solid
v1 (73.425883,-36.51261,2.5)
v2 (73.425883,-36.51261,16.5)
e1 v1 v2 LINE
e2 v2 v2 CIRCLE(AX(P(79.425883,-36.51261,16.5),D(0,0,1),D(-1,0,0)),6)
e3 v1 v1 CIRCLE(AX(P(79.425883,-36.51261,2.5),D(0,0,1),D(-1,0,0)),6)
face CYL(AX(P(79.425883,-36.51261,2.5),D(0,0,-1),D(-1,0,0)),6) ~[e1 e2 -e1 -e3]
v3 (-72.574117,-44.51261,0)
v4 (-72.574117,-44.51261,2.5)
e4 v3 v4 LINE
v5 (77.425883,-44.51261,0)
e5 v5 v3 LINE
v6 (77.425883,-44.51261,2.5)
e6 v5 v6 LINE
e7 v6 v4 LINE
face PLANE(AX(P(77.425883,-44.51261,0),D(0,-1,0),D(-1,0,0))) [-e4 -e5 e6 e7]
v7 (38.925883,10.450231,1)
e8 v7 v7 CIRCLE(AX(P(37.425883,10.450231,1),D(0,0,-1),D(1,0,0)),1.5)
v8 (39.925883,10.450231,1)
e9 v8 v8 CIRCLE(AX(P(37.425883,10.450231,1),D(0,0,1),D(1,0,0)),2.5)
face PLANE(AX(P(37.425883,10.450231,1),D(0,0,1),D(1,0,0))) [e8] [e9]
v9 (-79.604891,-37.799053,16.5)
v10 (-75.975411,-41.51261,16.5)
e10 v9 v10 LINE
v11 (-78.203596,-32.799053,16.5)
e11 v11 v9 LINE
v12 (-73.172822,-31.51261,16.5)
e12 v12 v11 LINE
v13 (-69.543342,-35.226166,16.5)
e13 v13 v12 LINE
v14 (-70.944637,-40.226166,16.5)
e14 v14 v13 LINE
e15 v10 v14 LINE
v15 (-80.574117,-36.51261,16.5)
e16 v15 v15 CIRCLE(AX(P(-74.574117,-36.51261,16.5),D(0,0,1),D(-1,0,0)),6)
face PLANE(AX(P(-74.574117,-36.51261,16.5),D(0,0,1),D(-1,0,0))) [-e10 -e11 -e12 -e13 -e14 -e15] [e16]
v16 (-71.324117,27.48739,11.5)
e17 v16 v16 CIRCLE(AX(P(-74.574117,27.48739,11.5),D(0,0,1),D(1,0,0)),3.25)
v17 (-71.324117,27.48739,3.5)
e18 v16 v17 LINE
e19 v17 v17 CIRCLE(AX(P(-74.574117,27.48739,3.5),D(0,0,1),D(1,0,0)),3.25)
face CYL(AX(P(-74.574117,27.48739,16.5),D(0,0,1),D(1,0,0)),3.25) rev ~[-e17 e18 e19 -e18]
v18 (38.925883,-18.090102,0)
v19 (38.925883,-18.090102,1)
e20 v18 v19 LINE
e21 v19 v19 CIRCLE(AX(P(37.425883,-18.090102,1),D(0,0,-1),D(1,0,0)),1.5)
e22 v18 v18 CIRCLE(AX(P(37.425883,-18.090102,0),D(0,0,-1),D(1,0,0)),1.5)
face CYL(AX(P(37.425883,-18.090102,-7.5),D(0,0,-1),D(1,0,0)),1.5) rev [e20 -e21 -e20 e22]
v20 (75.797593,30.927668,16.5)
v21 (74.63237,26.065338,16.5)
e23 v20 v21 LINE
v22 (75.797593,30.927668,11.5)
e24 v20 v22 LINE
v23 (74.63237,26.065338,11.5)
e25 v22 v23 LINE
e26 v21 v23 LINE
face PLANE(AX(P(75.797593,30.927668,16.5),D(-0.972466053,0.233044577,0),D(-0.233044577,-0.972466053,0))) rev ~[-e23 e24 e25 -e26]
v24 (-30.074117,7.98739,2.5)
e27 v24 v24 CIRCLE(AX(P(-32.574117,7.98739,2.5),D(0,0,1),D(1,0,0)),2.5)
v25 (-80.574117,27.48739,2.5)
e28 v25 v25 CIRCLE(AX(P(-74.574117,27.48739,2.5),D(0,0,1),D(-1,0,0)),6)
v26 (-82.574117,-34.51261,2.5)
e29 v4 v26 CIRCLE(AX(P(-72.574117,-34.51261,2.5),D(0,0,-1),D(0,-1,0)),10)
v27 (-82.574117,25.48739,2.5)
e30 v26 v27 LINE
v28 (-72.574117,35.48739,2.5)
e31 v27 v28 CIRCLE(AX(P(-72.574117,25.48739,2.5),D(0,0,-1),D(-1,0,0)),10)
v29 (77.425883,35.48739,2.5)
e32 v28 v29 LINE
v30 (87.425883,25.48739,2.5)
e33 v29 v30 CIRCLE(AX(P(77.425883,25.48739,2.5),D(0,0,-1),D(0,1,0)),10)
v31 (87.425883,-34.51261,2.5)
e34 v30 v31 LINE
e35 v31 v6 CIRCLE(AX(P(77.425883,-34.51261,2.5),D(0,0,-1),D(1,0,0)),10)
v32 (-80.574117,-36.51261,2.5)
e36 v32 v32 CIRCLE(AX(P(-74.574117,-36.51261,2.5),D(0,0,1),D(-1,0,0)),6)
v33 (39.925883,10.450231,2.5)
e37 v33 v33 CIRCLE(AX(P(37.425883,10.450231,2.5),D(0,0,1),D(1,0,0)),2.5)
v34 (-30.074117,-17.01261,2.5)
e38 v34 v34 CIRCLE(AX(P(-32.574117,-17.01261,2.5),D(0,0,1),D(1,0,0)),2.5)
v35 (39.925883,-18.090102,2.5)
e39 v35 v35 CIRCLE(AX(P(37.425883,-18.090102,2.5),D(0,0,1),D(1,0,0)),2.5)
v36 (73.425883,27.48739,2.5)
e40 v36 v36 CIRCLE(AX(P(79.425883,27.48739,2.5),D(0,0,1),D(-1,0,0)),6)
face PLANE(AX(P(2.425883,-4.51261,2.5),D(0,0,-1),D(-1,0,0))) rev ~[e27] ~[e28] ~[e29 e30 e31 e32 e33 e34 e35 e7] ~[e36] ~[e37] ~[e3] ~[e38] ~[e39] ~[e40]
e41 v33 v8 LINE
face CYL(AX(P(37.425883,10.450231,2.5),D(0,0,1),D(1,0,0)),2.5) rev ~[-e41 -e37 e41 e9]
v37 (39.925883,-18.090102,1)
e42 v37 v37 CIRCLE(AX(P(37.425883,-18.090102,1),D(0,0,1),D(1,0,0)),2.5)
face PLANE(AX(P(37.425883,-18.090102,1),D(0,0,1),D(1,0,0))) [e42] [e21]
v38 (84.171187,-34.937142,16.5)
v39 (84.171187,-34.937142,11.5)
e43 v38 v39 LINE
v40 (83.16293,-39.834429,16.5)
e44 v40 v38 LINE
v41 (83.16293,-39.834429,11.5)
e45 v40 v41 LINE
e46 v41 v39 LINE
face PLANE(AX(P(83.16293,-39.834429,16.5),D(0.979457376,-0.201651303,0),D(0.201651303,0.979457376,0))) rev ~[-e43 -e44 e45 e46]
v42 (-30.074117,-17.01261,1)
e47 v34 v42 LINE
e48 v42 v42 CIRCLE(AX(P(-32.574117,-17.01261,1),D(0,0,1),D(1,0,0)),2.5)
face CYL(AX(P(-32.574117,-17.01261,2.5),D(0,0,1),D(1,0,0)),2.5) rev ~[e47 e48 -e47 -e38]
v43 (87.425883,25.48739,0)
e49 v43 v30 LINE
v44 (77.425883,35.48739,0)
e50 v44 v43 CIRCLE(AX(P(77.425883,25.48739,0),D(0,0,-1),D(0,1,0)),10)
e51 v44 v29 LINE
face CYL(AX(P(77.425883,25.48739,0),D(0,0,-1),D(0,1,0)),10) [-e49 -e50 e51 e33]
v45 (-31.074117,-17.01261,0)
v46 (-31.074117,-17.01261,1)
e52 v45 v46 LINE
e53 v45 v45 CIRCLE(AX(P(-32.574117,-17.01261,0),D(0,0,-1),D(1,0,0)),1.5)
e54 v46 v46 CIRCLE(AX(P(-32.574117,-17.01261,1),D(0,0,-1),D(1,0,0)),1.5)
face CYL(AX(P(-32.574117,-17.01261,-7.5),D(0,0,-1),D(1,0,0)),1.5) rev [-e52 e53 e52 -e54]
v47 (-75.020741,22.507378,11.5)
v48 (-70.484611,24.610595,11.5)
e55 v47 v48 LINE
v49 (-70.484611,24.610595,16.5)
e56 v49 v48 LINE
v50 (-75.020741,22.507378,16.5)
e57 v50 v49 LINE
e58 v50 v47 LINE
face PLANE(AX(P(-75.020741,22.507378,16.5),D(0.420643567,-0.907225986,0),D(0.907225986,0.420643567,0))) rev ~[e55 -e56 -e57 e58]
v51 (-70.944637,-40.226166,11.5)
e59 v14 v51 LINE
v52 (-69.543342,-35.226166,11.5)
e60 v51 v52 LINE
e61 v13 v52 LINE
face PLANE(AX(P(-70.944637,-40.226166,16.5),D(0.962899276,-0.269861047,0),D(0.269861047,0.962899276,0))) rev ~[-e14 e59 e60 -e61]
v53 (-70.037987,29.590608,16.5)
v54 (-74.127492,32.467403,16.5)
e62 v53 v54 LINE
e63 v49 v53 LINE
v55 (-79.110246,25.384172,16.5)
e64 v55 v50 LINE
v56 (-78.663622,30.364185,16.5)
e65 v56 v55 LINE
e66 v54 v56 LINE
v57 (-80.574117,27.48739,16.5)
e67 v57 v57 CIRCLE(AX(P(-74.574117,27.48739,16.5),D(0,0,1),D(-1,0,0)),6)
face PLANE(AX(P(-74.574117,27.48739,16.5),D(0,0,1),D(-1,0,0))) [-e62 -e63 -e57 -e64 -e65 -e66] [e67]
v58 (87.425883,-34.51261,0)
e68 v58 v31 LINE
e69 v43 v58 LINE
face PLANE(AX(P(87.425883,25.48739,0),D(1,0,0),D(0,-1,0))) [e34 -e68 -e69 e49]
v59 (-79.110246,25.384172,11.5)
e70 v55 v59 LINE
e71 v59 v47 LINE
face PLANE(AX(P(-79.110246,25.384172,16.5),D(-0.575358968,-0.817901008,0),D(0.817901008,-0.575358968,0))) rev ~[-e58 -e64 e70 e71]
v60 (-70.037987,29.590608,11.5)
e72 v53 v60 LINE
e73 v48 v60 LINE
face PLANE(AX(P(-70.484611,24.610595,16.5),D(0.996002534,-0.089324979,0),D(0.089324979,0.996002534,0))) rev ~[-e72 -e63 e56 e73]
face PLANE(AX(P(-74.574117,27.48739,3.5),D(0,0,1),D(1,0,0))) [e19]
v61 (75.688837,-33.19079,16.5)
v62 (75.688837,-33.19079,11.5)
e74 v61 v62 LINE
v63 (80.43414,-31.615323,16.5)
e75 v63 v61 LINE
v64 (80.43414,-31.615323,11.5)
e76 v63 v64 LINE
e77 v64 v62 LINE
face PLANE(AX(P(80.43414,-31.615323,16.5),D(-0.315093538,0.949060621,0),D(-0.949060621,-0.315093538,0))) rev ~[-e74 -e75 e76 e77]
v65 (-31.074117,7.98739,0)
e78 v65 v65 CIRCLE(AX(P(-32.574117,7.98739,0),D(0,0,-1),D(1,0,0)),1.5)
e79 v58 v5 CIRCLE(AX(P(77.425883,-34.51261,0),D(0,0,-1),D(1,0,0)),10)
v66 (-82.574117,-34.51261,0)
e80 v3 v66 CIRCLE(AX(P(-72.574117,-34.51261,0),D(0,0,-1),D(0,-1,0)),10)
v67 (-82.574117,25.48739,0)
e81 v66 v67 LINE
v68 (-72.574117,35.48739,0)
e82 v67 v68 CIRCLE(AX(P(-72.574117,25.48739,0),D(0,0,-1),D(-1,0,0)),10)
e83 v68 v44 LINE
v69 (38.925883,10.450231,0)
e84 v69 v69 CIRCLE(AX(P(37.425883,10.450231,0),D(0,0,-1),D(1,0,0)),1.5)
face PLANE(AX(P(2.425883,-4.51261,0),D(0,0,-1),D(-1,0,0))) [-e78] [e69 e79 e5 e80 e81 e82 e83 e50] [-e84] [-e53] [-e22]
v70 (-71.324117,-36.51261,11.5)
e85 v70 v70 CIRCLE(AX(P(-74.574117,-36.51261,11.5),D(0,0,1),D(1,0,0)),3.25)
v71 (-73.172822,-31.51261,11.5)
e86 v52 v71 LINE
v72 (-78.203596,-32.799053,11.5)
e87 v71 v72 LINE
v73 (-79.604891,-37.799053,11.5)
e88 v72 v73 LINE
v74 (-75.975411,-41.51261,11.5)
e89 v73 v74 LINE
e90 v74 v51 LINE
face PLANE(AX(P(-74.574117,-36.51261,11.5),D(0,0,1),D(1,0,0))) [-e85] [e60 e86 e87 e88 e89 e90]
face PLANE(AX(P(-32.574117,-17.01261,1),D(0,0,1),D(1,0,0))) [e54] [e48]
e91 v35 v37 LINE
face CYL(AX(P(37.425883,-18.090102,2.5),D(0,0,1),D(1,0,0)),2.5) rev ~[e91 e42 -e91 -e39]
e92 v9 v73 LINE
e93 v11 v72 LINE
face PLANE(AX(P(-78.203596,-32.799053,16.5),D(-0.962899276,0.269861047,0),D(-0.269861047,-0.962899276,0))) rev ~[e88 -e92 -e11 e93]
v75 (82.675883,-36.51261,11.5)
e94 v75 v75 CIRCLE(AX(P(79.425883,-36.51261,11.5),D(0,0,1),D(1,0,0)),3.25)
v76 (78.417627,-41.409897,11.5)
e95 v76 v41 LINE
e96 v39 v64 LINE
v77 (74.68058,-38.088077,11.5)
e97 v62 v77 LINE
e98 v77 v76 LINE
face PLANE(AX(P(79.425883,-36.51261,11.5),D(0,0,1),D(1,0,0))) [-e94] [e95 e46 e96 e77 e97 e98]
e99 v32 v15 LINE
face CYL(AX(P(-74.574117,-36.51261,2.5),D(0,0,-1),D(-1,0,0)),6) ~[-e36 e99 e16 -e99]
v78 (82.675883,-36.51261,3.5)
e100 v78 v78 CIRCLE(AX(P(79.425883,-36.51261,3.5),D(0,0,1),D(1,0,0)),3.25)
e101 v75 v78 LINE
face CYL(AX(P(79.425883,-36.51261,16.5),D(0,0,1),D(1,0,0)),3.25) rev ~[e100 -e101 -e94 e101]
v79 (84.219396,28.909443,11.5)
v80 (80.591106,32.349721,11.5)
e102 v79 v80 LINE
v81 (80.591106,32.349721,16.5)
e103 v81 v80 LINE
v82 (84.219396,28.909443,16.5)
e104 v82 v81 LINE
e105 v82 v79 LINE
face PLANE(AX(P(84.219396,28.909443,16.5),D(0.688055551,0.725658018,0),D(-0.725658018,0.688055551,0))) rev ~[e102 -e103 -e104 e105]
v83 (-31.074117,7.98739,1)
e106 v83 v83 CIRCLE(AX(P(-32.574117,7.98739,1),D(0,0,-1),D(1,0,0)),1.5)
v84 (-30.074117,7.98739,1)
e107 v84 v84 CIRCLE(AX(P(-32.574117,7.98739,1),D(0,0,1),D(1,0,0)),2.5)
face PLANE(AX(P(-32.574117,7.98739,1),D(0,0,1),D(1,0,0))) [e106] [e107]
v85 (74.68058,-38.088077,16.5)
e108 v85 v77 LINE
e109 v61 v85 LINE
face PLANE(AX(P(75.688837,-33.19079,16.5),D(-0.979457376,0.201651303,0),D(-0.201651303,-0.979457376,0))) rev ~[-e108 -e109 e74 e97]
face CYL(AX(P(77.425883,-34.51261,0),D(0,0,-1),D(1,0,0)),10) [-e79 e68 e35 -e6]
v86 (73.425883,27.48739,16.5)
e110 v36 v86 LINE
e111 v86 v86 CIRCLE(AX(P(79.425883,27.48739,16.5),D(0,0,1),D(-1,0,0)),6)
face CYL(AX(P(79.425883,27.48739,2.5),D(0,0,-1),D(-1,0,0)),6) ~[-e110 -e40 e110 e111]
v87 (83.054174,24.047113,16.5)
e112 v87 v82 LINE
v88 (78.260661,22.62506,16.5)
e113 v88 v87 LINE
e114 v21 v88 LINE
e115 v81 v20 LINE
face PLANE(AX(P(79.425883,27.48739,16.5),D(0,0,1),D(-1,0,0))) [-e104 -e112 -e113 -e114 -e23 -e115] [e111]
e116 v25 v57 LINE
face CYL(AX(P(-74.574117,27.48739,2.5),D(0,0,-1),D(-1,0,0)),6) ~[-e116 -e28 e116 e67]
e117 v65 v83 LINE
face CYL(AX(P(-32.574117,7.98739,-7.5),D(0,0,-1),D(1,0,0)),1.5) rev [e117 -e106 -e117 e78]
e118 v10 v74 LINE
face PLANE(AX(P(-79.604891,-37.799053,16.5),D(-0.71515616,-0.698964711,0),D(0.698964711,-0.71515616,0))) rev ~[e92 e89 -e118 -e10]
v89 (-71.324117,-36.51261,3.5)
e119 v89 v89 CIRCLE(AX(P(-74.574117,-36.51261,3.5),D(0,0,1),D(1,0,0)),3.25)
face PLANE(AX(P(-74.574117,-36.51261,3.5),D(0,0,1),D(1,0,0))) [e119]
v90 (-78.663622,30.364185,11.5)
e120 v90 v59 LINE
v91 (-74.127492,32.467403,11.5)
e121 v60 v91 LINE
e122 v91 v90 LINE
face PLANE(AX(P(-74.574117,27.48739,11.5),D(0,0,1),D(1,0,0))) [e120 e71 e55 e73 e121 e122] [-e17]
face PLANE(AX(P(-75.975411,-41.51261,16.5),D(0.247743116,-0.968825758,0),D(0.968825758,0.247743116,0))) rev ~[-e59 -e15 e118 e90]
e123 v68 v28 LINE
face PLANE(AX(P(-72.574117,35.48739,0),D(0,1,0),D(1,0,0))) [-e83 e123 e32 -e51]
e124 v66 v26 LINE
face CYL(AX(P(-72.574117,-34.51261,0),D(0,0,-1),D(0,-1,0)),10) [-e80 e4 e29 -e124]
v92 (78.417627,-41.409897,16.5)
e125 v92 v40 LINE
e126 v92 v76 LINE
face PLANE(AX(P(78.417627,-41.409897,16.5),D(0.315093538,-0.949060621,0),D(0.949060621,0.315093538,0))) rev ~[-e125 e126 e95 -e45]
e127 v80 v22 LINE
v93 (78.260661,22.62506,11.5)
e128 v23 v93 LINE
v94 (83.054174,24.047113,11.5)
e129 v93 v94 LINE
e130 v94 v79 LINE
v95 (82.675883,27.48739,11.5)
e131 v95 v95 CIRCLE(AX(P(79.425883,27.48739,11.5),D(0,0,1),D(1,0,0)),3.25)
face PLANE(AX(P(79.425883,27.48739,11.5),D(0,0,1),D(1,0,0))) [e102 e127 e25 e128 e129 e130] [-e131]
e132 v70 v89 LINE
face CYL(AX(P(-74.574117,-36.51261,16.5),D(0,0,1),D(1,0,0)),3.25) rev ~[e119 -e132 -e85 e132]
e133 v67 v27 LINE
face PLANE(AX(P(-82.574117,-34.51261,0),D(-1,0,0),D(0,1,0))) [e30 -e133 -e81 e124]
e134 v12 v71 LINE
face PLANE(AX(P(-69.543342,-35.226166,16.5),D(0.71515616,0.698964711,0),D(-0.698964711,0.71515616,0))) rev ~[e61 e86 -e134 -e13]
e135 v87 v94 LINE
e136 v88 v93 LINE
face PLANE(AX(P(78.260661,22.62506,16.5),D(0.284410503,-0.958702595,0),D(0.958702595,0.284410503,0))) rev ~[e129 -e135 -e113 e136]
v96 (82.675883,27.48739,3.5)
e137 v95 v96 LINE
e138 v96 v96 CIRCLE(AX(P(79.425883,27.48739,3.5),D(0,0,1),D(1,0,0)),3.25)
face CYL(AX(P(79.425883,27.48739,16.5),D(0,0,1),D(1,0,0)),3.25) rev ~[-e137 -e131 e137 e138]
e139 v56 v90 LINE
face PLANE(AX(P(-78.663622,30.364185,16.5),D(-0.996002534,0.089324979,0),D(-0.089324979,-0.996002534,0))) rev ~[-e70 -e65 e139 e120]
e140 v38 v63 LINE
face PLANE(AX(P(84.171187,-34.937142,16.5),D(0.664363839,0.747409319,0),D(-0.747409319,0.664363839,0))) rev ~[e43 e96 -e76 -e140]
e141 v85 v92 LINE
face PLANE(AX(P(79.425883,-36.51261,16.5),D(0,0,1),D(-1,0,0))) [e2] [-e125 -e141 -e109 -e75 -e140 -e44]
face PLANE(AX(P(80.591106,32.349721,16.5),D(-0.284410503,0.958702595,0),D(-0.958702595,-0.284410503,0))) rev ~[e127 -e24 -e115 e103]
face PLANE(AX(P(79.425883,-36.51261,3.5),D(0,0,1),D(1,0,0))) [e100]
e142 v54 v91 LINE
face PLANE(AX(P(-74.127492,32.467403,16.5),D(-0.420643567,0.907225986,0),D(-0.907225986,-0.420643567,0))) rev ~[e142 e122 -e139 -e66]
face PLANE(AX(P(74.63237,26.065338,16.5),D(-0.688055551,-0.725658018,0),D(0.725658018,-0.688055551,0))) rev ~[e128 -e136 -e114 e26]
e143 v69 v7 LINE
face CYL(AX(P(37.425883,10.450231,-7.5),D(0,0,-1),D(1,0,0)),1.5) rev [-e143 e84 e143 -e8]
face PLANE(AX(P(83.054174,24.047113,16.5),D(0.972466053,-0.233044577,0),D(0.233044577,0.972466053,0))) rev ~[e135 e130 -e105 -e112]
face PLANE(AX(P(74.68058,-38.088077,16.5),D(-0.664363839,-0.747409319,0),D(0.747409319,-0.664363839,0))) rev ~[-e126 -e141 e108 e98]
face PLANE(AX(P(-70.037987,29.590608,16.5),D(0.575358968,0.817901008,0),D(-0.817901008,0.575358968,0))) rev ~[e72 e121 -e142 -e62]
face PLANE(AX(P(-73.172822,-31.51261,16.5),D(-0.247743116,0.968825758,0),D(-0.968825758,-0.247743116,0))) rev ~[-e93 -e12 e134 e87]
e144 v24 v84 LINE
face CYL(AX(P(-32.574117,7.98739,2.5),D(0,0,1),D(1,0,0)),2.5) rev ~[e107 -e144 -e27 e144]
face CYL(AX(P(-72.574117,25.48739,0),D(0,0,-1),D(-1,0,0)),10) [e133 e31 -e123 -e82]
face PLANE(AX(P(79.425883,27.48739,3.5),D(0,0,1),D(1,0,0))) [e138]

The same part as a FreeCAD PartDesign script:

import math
import FreeCAD as App
import Part
import Sketcher
from FreeCAD import Vector

doc = App.newDocument("Part")
params = doc.addObject("Spreadsheet::Sheet", "Params")
for row, (alias, value) in enumerate([
    ("sketch1_radius", "10 mm"),
    ("sketch1_width", "150 mm"),
    ("sketch1_height", "60 mm"),
    ("pad1_length", "2.5 mm"),
    ("sketch2_diameter", "3 mm"),
    ("sketch3_diameter", "5 mm"),
    ("pocket2_length", "1.5 mm"),
    ("sketch4_diameter", "12 mm"),
    ("pad2_length", "14 mm"),
    ("pocket3_length", "5 mm"),
    ("sketch6_length", "5 mm"),
    ("pocket4_length", "5 mm"),
    ("sketch7_length", "5 mm"),
    ("pocket5_length", "5 mm"),
    ("sketch8_length", "5 mm"),
    ("pocket6_length", "5 mm"),
    ("sketch9_diameter", "6.5 mm"),
    ("pocket7_length", "13 mm"),
    ("sketch10_diameter", "6.5 mm"),
    ("pocket8_length", "13 mm"),
    ("sketch11_diameter", "6.5 mm"),
    ("pocket9_length", "13 mm"),
    ("sketch12_diameter", "6.5 mm"),
    ("pocket10_length", "13 mm"),
], start=1):
    params.set(f"A{row}", alias)
    params.set(f"B{row}", "=" + value)
    params.setAlias(f"B{row}", alias)

body = doc.addObject("PartDesign::Body", "Body")

# Sketch on XY plane
sketch1 = doc.addObject("Sketcher::SketchObject", "Sketch")
body.addObject(sketch1)
sketch1.AttachmentSupport = (doc.XY_Plane, [""])
sketch1.MapMode = "FlatFace"
sketch1.addGeometry(Part.LineSegment(Vector(77.425883, 35.48739, 0), Vector(-72.574117, 35.48739, 0)), False)
sketch1.addGeometry(Part.ArcOfCircle(Part.Circle(Vector(-72.574117, 25.48739, 0), Vector(0, 0, 1), 10), math.radians(90), math.radians(180)), False)
sketch1.addGeometry(Part.LineSegment(Vector(-82.574117, 25.48739, 0), Vector(-82.574117, -34.51261, 0)), False)
sketch1.addGeometry(Part.ArcOfCircle(Part.Circle(Vector(-72.574117, -34.51261, 0), Vector(0, 0, 1), 10), math.radians(180), math.radians(270)), False)
sketch1.addGeometry(Part.LineSegment(Vector(-72.574117, -44.51261, 0), Vector(77.425883, -44.51261, 0)), False)
sketch1.addGeometry(Part.ArcOfCircle(Part.Circle(Vector(77.425883, -34.51261, 0), Vector(0, 0, 1), 10), math.radians(-90), math.radians(0)), False)
sketch1.addGeometry(Part.LineSegment(Vector(87.425883, -34.51261, 0), Vector(87.425883, 25.48739, 0)), False)
sketch1.addGeometry(Part.ArcOfCircle(Part.Circle(Vector(77.425883, 25.48739, 0), Vector(0, 0, 1), 10), math.radians(0), math.radians(90)), False)
sketch1.addConstraint(Sketcher.Constraint("Tangent", 0, 2, 1, 1))
sketch1.addConstraint(Sketcher.Constraint("Tangent", 1, 2, 2, 1))
sketch1.addConstraint(Sketcher.Constraint("Tangent", 2, 2, 3, 1))
sketch1.addConstraint(Sketcher.Constraint("Tangent", 3, 2, 4, 1))
sketch1.addConstraint(Sketcher.Constraint("Tangent", 4, 2, 5, 1))
sketch1.addConstraint(Sketcher.Constraint("Tangent", 5, 2, 6, 1))
sketch1.addConstraint(Sketcher.Constraint("Tangent", 6, 2, 7, 1))
sketch1.addConstraint(Sketcher.Constraint("Tangent", 7, 2, 0, 1))
sketch1.addConstraint(Sketcher.Constraint("Horizontal", 0))
sketch1.addConstraint(Sketcher.Constraint("Vertical", 2))
sketch1.addConstraint(Sketcher.Constraint("Horizontal", 4))
sketch1.addConstraint(Sketcher.Constraint("Vertical", 6))
sketch1.addConstraint(Sketcher.Constraint("Equal", 1, 3))
sketch1.addConstraint(Sketcher.Constraint("Equal", 3, 5))
sketch1.addConstraint(Sketcher.Constraint("Equal", 5, 7))
sketch1.addConstraint(Sketcher.Constraint("Radius", 1, 10.0))
sketch1.addConstraint(Sketcher.Constraint("DistanceX", 0, 2, 0, 1, 150.0))
sketch1.addConstraint(Sketcher.Constraint("DistanceY", 2, 2, 2, 1, 60.0))
sketch1.addConstraint(Sketcher.Constraint("DistanceY", -1, 1, 1, 3, 25.48739))
sketch1.addConstraint(Sketcher.Constraint("DistanceX", 1, 3, -1, 1, 72.574117))
sketch1.setExpression("Constraints[15]", "Params.sketch1_radius")
sketch1.setExpression("Constraints[16]", "Params.sketch1_width")
sketch1.setExpression("Constraints[17]", "Params.sketch1_height")
pad1 = doc.addObject("PartDesign::Pad", "Pad")
body.addObject(pad1)
pad1.Profile = sketch1
pad1.setExpression("Length", "Params.pad1_length")

# Sketch on XY plane
sketch2 = doc.addObject("Sketcher::SketchObject", "Sketch001")
body.addObject(sketch2)
sketch2.AttachmentSupport = (doc.XY_Plane, [""])
sketch2.MapMode = "FlatFace"
sketch2.AttachmentOffset = App.Placement(Vector(0, 0, 2.5), App.Rotation())
sketch2.addGeometry(Part.Circle(Vector(-32.574117, 7.98739, 0), Vector(0, 0, 1), 1.5), False)
sketch2.addGeometry(Part.Circle(Vector(-32.574117, -17.01261, 0), Vector(0, 0, 1), 1.5), False)
sketch2.addGeometry(Part.Circle(Vector(37.425883, 10.450231, 0), Vector(0, 0, 1), 1.5), False)
sketch2.addGeometry(Part.Circle(Vector(37.425883, -18.090102, 0), Vector(0, 0, 1), 1.5), False)
sketch2.addConstraint(Sketcher.Constraint("Equal", 0, 1))
sketch2.addConstraint(Sketcher.Constraint("Equal", 1, 2))
sketch2.addConstraint(Sketcher.Constraint("Equal", 2, 3))
sketch2.addConstraint(Sketcher.Constraint("Vertical", 0, 3, 1, 3))
sketch2.addConstraint(Sketcher.Constraint("Vertical", 2, 3, 3, 3))
sketch2.addConstraint(Sketcher.Constraint("Diameter", 0, 3.0))
sketch2.addConstraint(Sketcher.Constraint("DistanceY", 1, 3, 0, 3, 25.0))
sketch2.addConstraint(Sketcher.Constraint("DistanceX", 0, 3, 2, 3, 70.0))
sketch2.addConstraint(Sketcher.Constraint("DistanceY", -1, 1, 0, 3, 7.98739))
sketch2.addConstraint(Sketcher.Constraint("DistanceY", -1, 1, 2, 3, 10.450231))
sketch2.addConstraint(Sketcher.Constraint("DistanceX", 0, 3, -1, 1, 32.574117))
sketch2.addConstraint(Sketcher.Constraint("DistanceY", 3, 3, -1, 1, 18.090102))
sketch2.setExpression("Constraints[5]", "Params.sketch2_diameter")
pocket1 = doc.addObject("PartDesign::Pocket", "Pocket")
body.addObject(pocket1)
pocket1.Profile = sketch2
pocket1.Type = "ThroughAll"
pocket1.Midplane = True

# Sketch on XY plane
sketch3 = doc.addObject("Sketcher::SketchObject", "Sketch002")
body.addObject(sketch3)
sketch3.AttachmentSupport = (doc.XY_Plane, [""])
sketch3.MapMode = "FlatFace"
sketch3.AttachmentOffset = App.Placement(Vector(0, 0, 2.5), App.Rotation())
sketch3.addGeometry(Part.Circle(Vector(-32.574117, 7.98739, 0), Vector(0, 0, 1), 2.5), False)
sketch3.addGeometry(Part.Circle(Vector(37.425883, 10.450231, 0), Vector(0, 0, 1), 2.5), False)
sketch3.addGeometry(Part.Circle(Vector(37.425883, -18.090102, 0), Vector(0, 0, 1), 2.5), False)
sketch3.addGeometry(Part.Circle(Vector(-32.574117, -17.01261, 0), Vector(0, 0, 1), 2.5), False)
sketch3.addConstraint(Sketcher.Constraint("Equal", 0, 1))
sketch3.addConstraint(Sketcher.Constraint("Equal", 1, 2))
sketch3.addConstraint(Sketcher.Constraint("Equal", 2, 3))
sketch3.addConstraint(Sketcher.Constraint("Vertical", 1, 3, 2, 3))
sketch3.addConstraint(Sketcher.Constraint("Vertical", 0, 3, 3, 3))
sketch3.addConstraint(Sketcher.Constraint("Diameter", 0, 5.0))
sketch3.addConstraint(Sketcher.Constraint("DistanceX", 0, 3, 1, 3, 70.0))
sketch3.addConstraint(Sketcher.Constraint("DistanceY", 3, 3, 0, 3, 25.0))
sketch3.addConstraint(Sketcher.Constraint("DistanceY", -1, 1, 0, 3, 7.98739))
sketch3.addConstraint(Sketcher.Constraint("DistanceY", -1, 1, 1, 3, 10.450231))
sketch3.addConstraint(Sketcher.Constraint("DistanceX", 0, 3, -1, 1, 32.574117))
sketch3.addConstraint(Sketcher.Constraint("DistanceY", 2, 3, -1, 1, 18.090102))
sketch3.setExpression("Constraints[5]", "Params.sketch3_diameter")
pocket2 = doc.addObject("PartDesign::Pocket", "Pocket001")
body.addObject(pocket2)
pocket2.Profile = sketch3
pocket2.setExpression("Length", "Params.pocket2_length")

# Sketch on XY plane
sketch4 = doc.addObject("Sketcher::SketchObject", "Sketch003")
body.addObject(sketch4)
sketch4.AttachmentSupport = (doc.XY_Plane, [""])
sketch4.MapMode = "FlatFace"
sketch4.AttachmentOffset = App.Placement(Vector(0, 0, 2.5), App.Rotation())
sketch4.addGeometry(Part.Circle(Vector(-74.574117, 27.48739, 0), Vector(0, 0, 1), 6), False)
sketch4.addGeometry(Part.Circle(Vector(-74.574117, -36.51261, 0), Vector(0, 0, 1), 6), False)
sketch4.addGeometry(Part.Circle(Vector(79.425883, 27.48739, 0), Vector(0, 0, 1), 6), False)
sketch4.addGeometry(Part.Circle(Vector(79.425883, -36.51261, 0), Vector(0, 0, 1), 6), False)
sketch4.addConstraint(Sketcher.Constraint("Equal", 0, 1))
sketch4.addConstraint(Sketcher.Constraint("Equal", 1, 2))
sketch4.addConstraint(Sketcher.Constraint("Equal", 2, 3))
sketch4.addConstraint(Sketcher.Constraint("Horizontal", 0, 3, 2, 3))
sketch4.addConstraint(Sketcher.Constraint("Horizontal", 1, 3, 3, 3))
sketch4.addConstraint(Sketcher.Constraint("Vertical", 0, 3, 1, 3))
sketch4.addConstraint(Sketcher.Constraint("Vertical", 2, 3, 3, 3))
sketch4.addConstraint(Sketcher.Constraint("Diameter", 0, 12.0))
sketch4.addConstraint(Sketcher.Constraint("DistanceY", 1, 3, 0, 3, 64.0))
sketch4.addConstraint(Sketcher.Constraint("DistanceX", 0, 3, 2, 3, 154.0))
sketch4.addConstraint(Sketcher.Constraint("DistanceY", -1, 1, 0, 3, 27.48739))
sketch4.addConstraint(Sketcher.Constraint("DistanceX", 0, 3, -1, 1, 74.574117))
sketch4.setExpression("Constraints[7]", "Params.sketch4_diameter")
pad2 = doc.addObject("PartDesign::Pad", "Pad001")
body.addObject(pad2)
pad2.Profile = sketch4
pad2.setExpression("Length", "Params.pad2_length")

# Sketch on XY plane
sketch5 = doc.addObject("Sketcher::SketchObject", "Sketch004")
body.addObject(sketch5)
sketch5.AttachmentSupport = (doc.XY_Plane, [""])
sketch5.MapMode = "FlatFace"
sketch5.AttachmentOffset = App.Placement(Vector(0, 0, 16.5), App.Rotation())
sketch5.addGeometry(Part.LineSegment(Vector(-70.944637, -40.226166, 0), Vector(-69.543342, -35.226166, 0)), False)
sketch5.addGeometry(Part.LineSegment(Vector(-69.543342, -35.226166, 0), Vector(-73.172822, -31.51261, 0)), False)
sketch5.addGeometry(Part.LineSegment(Vector(-73.172822, -31.51261, 0), Vector(-78.203596, -32.799053, 0)), False)
sketch5.addGeometry(Part.LineSegment(Vector(-78.203596, -32.799053, 0), Vector(-79.604891, -37.799053, 0)), False)
sketch5.addGeometry(Part.LineSegment(Vector(-79.604891, -37.799053, 0), Vector(-75.975411, -41.51261, 0)), False)
sketch5.addGeometry(Part.LineSegment(Vector(-75.975411, -41.51261, 0), Vector(-70.944637, -40.226166, 0)), False)
sketch5.addConstraint(Sketcher.Constraint("Coincident", 0, 2, 1, 1))
sketch5.addConstraint(Sketcher.Constraint("Coincident", 1, 2, 2, 1))
sketch5.addConstraint(Sketcher.Constraint("Coincident", 2, 2, 3, 1))
sketch5.addConstraint(Sketcher.Constraint("Coincident", 3, 2, 4, 1))
sketch5.addConstraint(Sketcher.Constraint("Coincident", 4, 2, 5, 1))
sketch5.addConstraint(Sketcher.Constraint("Coincident", 5, 2, 0, 1))
sketch5.addConstraint(Sketcher.Constraint("Parallel", 0, 3))
sketch5.addConstraint(Sketcher.Constraint("Parallel", 1, 4))
sketch5.addConstraint(Sketcher.Constraint("Parallel", 2, 5))
sketch5.addConstraint(Sketcher.Constraint("Equal", 0, 1))
sketch5.addConstraint(Sketcher.Constraint("Equal", 1, 2))
sketch5.addConstraint(Sketcher.Constraint("Equal", 2, 3))
sketch5.addConstraint(Sketcher.Constraint("DistanceY", 3, 2, 2, 2, 5.0))
sketch5.addConstraint(Sketcher.Constraint("DistanceY", 4, 2, 1, 2, 10.0))
sketch5.addConstraint(Sketcher.Constraint("Distance", 0, 5.192651))
sketch5.addConstraint(Sketcher.Constraint("DistanceY", 1, 2, -1, 1, 31.51261))
sketch5.addConstraint(Sketcher.Constraint("DistanceX", 3, 2, -1, 1, 79.604891))
sketch5.addConstraint(Sketcher.Constraint("DistanceX", 4, 2, -1, 1, 75.975411))
pocket3 = doc.addObject("PartDesign::Pocket", "Pocket002")
body.addObject(pocket3)
pocket3.Profile = sketch5
pocket3.setExpression("Length", "Params.pocket3_length")

# Sketch on XY plane
sketch6 = doc.addObject("Sketcher::SketchObject", "Sketch005")
body.addObject(sketch6)
sketch6.AttachmentSupport = (doc.XY_Plane, [""])
sketch6.MapMode = "FlatFace"
sketch6.AttachmentOffset = App.Placement(Vector(0, 0, 16.5), App.Rotation())
sketch6.addGeometry(Part.LineSegment(Vector(-70.484611, 24.610595, 0), Vector(-70.037987, 29.590608, 0)), False)
sketch6.addGeometry(Part.LineSegment(Vector(-70.037987, 29.590608, 0), Vector(-74.127492, 32.467403, 0)), False)
sketch6.addGeometry(Part.LineSegment(Vector(-74.127492, 32.467403, 0), Vector(-78.663622, 30.364185, 0)), False)
sketch6.addGeometry(Part.LineSegment(Vector(-78.663622, 30.364185, 0), Vector(-79.110246, 25.384172, 0)), False)
sketch6.addGeometry(Part.LineSegment(Vector(-79.110246, 25.384172, 0), Vector(-75.020741, 22.507378, 0)), False)
sketch6.addGeometry(Part.LineSegment(Vector(-75.020741, 22.507378, 0), Vector(-70.484611, 24.610595, 0)), False)
sketch6.addConstraint(Sketcher.Constraint("Coincident", 0, 2, 1, 1))
sketch6.addConstraint(Sketcher.Constraint("Coincident", 1, 2, 2, 1))
sketch6.addConstraint(Sketcher.Constraint("Coincident", 2, 2, 3, 1))
sketch6.addConstraint(Sketcher.Constraint("Coincident", 3, 2, 4, 1))
sketch6.addConstraint(Sketcher.Constraint("Coincident", 4, 2, 5, 1))
sketch6.addConstraint(Sketcher.Constraint("Coincident", 5, 2, 0, 1))
sketch6.addConstraint(Sketcher.Constraint("Parallel", 0, 3))
sketch6.addConstraint(Sketcher.Constraint("Parallel", 1, 4))
sketch6.addConstraint(Sketcher.Constraint("Parallel", 2, 5))
sketch6.addConstraint(Sketcher.Constraint("Equal", 0, 1))
sketch6.addConstraint(Sketcher.Constraint("Equal", 1, 2))
sketch6.addConstraint(Sketcher.Constraint("Equal", 2, 3))
sketch6.addConstraint(Sketcher.Constraint("Distance", 0, 5.0))
sketch6.addConstraint(Sketcher.Constraint("DistanceY", -1, 1, 0, 2, 29.590608))
sketch6.addConstraint(Sketcher.Constraint("DistanceX", 1, 2, -1, 1, 74.127492))
sketch6.addConstraint(Sketcher.Constraint("DistanceX", 2, 2, -1, 1, 78.663622))
sketch6.addConstraint(Sketcher.Constraint("DistanceX", 4, 2, -1, 1, 75.020741))
sketch6.addConstraint(Sketcher.Constraint("DistanceY", 3, 2, 1, 2, 7.083231))
sketch6.setExpression("Constraints[12]", "Params.sketch6_length")
pocket4 = doc.addObject("PartDesign::Pocket", "Pocket003")
body.addObject(pocket4)
pocket4.Profile = sketch6
pocket4.setExpression("Length", "Params.pocket4_length")

# Sketch on XY plane
sketch7 = doc.addObject("Sketcher::SketchObject", "Sketch006")
body.addObject(sketch7)
sketch7.AttachmentSupport = (doc.XY_Plane, [""])
sketch7.MapMode = "FlatFace"
sketch7.AttachmentOffset = App.Placement(Vector(0, 0, 16.5), App.Rotation())
sketch7.addGeometry(Part.LineSegment(Vector(83.054174, 24.047113, 0), Vector(84.219396, 28.909443, 0)), False)
sketch7.addGeometry(Part.LineSegment(Vector(84.219396, 28.909443, 0), Vector(80.591106, 32.349721, 0)), False)
sketch7.addGeometry(Part.LineSegment(Vector(80.591106, 32.349721, 0), Vector(75.797593, 30.927668, 0)), False)
sketch7.addGeometry(Part.LineSegment(Vector(75.797593, 30.927668, 0), Vector(74.63237, 26.065338, 0)), False)
sketch7.addGeometry(Part.LineSegment(Vector(74.63237, 26.065338, 0), Vector(78.260661, 22.62506, 0)), False)
sketch7.addGeometry(Part.LineSegment(Vector(78.260661, 22.62506, 0), Vector(83.054174, 24.047113, 0)), False)
sketch7.addConstraint(Sketcher.Constraint("Coincident", 0, 2, 1, 1))
sketch7.addConstraint(Sketcher.Constraint("Coincident", 1, 2, 2, 1))
sketch7.addConstraint(Sketcher.Constraint("Coincident", 2, 2, 3, 1))
sketch7.addConstraint(Sketcher.Constraint("Coincident", 3, 2, 4, 1))
sketch7.addConstraint(Sketcher.Constraint("Coincident", 4, 2, 5, 1))
sketch7.addConstraint(Sketcher.Constraint("Coincident", 5, 2, 0, 1))
sketch7.addConstraint(Sketcher.Constraint("Parallel", 0, 3))
sketch7.addConstraint(Sketcher.Constraint("Parallel", 1, 4))
sketch7.addConstraint(Sketcher.Constraint("Parallel", 2, 5))
sketch7.addConstraint(Sketcher.Constraint("Equal", 0, 1))
sketch7.addConstraint(Sketcher.Constraint("Equal", 1, 2))
sketch7.addConstraint(Sketcher.Constraint("Equal", 2, 3))
sketch7.addConstraint(Sketcher.Constraint("Distance", 0, 5.0))
sketch7.addConstraint(Sketcher.Constraint("DistanceY", -1, 1, 1, 2, 32.349721))
sketch7.addConstraint(Sketcher.Constraint("DistanceY", -1, 1, 2, 2, 30.927668))
sketch7.addConstraint(Sketcher.Constraint("DistanceX", -1, 1, 3, 2, 74.63237))
sketch7.addConstraint(Sketcher.Constraint("DistanceX", -1, 1, 4, 2, 78.260661))
sketch7.addConstraint(Sketcher.Constraint("DistanceY", -1, 1, 4, 2, 22.62506))
sketch7.setExpression("Constraints[12]", "Params.sketch7_length")
pocket5 = doc.addObject("PartDesign::Pocket", "Pocket004")
body.addObject(pocket5)
pocket5.Profile = sketch7
pocket5.setExpression("Length", "Params.pocket5_length")

# Sketch on XY plane
sketch8 = doc.addObject("Sketcher::SketchObject", "Sketch007")
body.addObject(sketch8)
sketch8.AttachmentSupport = (doc.XY_Plane, [""])
sketch8.MapMode = "FlatFace"
sketch8.AttachmentOffset = App.Placement(Vector(0, 0, 16.5), App.Rotation())
sketch8.addGeometry(Part.LineSegment(Vector(83.16293, -39.834429, 0), Vector(84.171187, -34.937142, 0)), False)
sketch8.addGeometry(Part.LineSegment(Vector(84.171187, -34.937142, 0), Vector(80.43414, -31.615323, 0)), False)
sketch8.addGeometry(Part.LineSegment(Vector(80.43414, -31.615323, 0), Vector(75.688837, -33.19079, 0)), False)
sketch8.addGeometry(Part.LineSegment(Vector(75.688837, -33.19079, 0), Vector(74.68058, -38.088077, 0)), False)
sketch8.addGeometry(Part.LineSegment(Vector(74.68058, -38.088077, 0), Vector(78.417627, -41.409897, 0)), False)
sketch8.addGeometry(Part.LineSegment(Vector(78.417627, -41.409897, 0), Vector(83.16293, -39.834429, 0)), False)
sketch8.addConstraint(Sketcher.Constraint("Coincident", 0, 2, 1, 1))
sketch8.addConstraint(Sketcher.Constraint("Coincident", 1, 2, 2, 1))
sketch8.addConstraint(Sketcher.Constraint("Coincident", 2, 2, 3, 1))
sketch8.addConstraint(Sketcher.Constraint("Coincident", 3, 2, 4, 1))
sketch8.addConstraint(Sketcher.Constraint("Coincident", 4, 2, 5, 1))
sketch8.addConstraint(Sketcher.Constraint("Coincident", 5, 2, 0, 1))
sketch8.addConstraint(Sketcher.Constraint("Parallel", 0, 3))
sketch8.addConstraint(Sketcher.Constraint("Parallel", 1, 4))
sketch8.addConstraint(Sketcher.Constraint("Parallel", 2, 5))
sketch8.addConstraint(Sketcher.Constraint("Equal", 0, 1))
sketch8.addConstraint(Sketcher.Constraint("Equal", 1, 2))
sketch8.addConstraint(Sketcher.Constraint("Equal", 2, 3))
sketch8.addConstraint(Sketcher.Constraint("Distance", 0, 5.0))
sketch8.addConstraint(Sketcher.Constraint("DistanceX", -1, 1, 1, 2, 80.43414))
sketch8.addConstraint(Sketcher.Constraint("DistanceY", 2, 2, -1, 1, 33.19079))
sketch8.addConstraint(Sketcher.Constraint("DistanceX", -1, 1, 3, 2, 74.68058))
sketch8.addConstraint(Sketcher.Constraint("DistanceX", -1, 1, 5, 2, 83.16293))
sketch8.addConstraint(Sketcher.Constraint("DistanceY", 5, 2, -1, 1, 39.834429))
sketch8.setExpression("Constraints[12]", "Params.sketch8_length")
pocket6 = doc.addObject("PartDesign::Pocket", "Pocket005")
body.addObject(pocket6)
pocket6.Profile = sketch8
pocket6.setExpression("Length", "Params.pocket6_length")

# Sketch on XY plane
sketch9 = doc.addObject("Sketcher::SketchObject", "Sketch008")
body.addObject(sketch9)
sketch9.AttachmentSupport = (doc.XY_Plane, [""])
sketch9.MapMode = "FlatFace"
sketch9.AttachmentOffset = App.Placement(Vector(0, 0, 16.5), App.Rotation())
sketch9.addGeometry(Part.Circle(Vector(-74.574117, -36.51261, 0), Vector(0, 0, 1), 3.25), False)
sketch9.addConstraint(Sketcher.Constraint("Diameter", 0, 6.5))
sketch9.addConstraint(Sketcher.Constraint("DistanceY", 0, 3, -1, 1, 36.51261))
sketch9.addConstraint(Sketcher.Constraint("DistanceX", 0, 3, -1, 1, 74.574117))
sketch9.setExpression("Constraints[0]", "Params.sketch9_diameter")
pocket7 = doc.addObject("PartDesign::Pocket", "Pocket006")
body.addObject(pocket7)
pocket7.Profile = sketch9
pocket7.setExpression("Length", "Params.pocket7_length")

# Sketch on XY plane
sketch10 = doc.addObject("Sketcher::SketchObject", "Sketch009")
body.addObject(sketch10)
sketch10.AttachmentSupport = (doc.XY_Plane, [""])
sketch10.MapMode = "FlatFace"
sketch10.AttachmentOffset = App.Placement(Vector(0, 0, 16.5), App.Rotation())
sketch10.addGeometry(Part.Circle(Vector(-74.574117, 27.48739, 0), Vector(0, 0, 1), 3.25), False)
sketch10.addConstraint(Sketcher.Constraint("Diameter", 0, 6.5))
sketch10.addConstraint(Sketcher.Constraint("DistanceY", -1, 1, 0, 3, 27.48739))
sketch10.addConstraint(Sketcher.Constraint("DistanceX", 0, 3, -1, 1, 74.574117))
sketch10.setExpression("Constraints[0]", "Params.sketch10_diameter")
pocket8 = doc.addObject("PartDesign::Pocket", "Pocket007")
body.addObject(pocket8)
pocket8.Profile = sketch10
pocket8.setExpression("Length", "Params.pocket8_length")

# Sketch on XY plane
sketch11 = doc.addObject("Sketcher::SketchObject", "Sketch010")
body.addObject(sketch11)
sketch11.AttachmentSupport = (doc.XY_Plane, [""])
sketch11.MapMode = "FlatFace"
sketch11.AttachmentOffset = App.Placement(Vector(0, 0, 16.5), App.Rotation())
sketch11.addGeometry(Part.Circle(Vector(79.425883, 27.48739, 0), Vector(0, 0, 1), 3.25), False)
sketch11.addConstraint(Sketcher.Constraint("Diameter", 0, 6.5))
sketch11.addConstraint(Sketcher.Constraint("DistanceY", -1, 1, 0, 3, 27.48739))
sketch11.addConstraint(Sketcher.Constraint("DistanceX", -1, 1, 0, 3, 79.425883))
sketch11.setExpression("Constraints[0]", "Params.sketch11_diameter")
pocket9 = doc.addObject("PartDesign::Pocket", "Pocket008")
body.addObject(pocket9)
pocket9.Profile = sketch11
pocket9.setExpression("Length", "Params.pocket9_length")

# Sketch on XY plane
sketch12 = doc.addObject("Sketcher::SketchObject", "Sketch011")
body.addObject(sketch12)
sketch12.AttachmentSupport = (doc.XY_Plane, [""])
sketch12.MapMode = "FlatFace"
sketch12.AttachmentOffset = App.Placement(Vector(0, 0, 16.5), App.Rotation())
sketch12.addGeometry(Part.Circle(Vector(79.425883, -36.51261, 0), Vector(0, 0, 1), 3.25), False)
sketch12.addConstraint(Sketcher.Constraint("Diameter", 0, 6.5))
sketch12.addConstraint(Sketcher.Constraint("DistanceY", 0, 3, -1, 1, 36.51261))
sketch12.addConstraint(Sketcher.Constraint("DistanceX", -1, 1, 0, 3, 79.425883))
sketch12.setExpression("Constraints[0]", "Params.sketch12_diameter")
pocket10 = doc.addObject("PartDesign::Pocket", "Pocket009")
body.addObject(pocket10)
pocket10.Profile = sketch12
pocket10.setExpression("Length", "Params.pocket10_length")

doc.recompute()
